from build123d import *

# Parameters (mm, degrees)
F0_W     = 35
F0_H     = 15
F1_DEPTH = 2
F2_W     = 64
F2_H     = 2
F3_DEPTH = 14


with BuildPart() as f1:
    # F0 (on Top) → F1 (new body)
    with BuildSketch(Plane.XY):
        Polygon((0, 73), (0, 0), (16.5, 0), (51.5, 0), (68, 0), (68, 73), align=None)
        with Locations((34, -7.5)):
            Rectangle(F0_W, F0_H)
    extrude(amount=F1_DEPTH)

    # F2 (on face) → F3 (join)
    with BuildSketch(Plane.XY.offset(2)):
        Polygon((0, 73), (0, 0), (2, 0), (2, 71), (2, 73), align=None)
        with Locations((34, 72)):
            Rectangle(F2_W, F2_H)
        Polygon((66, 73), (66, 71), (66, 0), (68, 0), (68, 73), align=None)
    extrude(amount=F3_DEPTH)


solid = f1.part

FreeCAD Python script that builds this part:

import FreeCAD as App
import Part
import Sketcher

V = App.Vector

doc = App.newDocument("Part")
body = doc.addObject("PartDesign::Body", "Body")

# Sketch on XY plane
sketch1 = doc.addObject("Sketcher::SketchObject", "Sketch")
body.addObject(sketch1)
sketch1.AttachmentSupport = (doc.XY_Plane, [""])
sketch1.MapMode = "FlatFace"
sketch1.addGeometry([
    Part.LineSegment(V(0, 73, 0), V(0, 0, 0)),  # 0
    Part.LineSegment(V(0, 0, 0), V(16, 0, 0)),  # 1
    Part.LineSegment(V(16, 0, 0), V(16, -15, 0)),  # 2
    Part.LineSegment(V(16, -15, 0), V(52, -15, 0)),  # 3
    Part.LineSegment(V(52, -15, 0), V(52, 0, 0)),  # 4
    Part.LineSegment(V(52, 0, 0), V(68, 0, 0)),  # 5
    Part.LineSegment(V(68, 0, 0), V(68, 73, 0)),  # 6
    Part.LineSegment(V(68, 73, 0), V(0, 73, 0)),  # 7
], False)
sketch1.addConstraint([
    Sketcher.Constraint("Coincident", 0, 2, 1, 1),
    Sketcher.Constraint("Coincident", 1, 2, 2, 1),
    Sketcher.Constraint("Coincident", 2, 2, 3, 1),
    Sketcher.Constraint("Coincident", 3, 2, 4, 1),
    Sketcher.Constraint("Coincident", 4, 2, 5, 1),
    Sketcher.Constraint("Coincident", 5, 2, 6, 1),
    Sketcher.Constraint("Coincident", 6, 2, 7, 1),
    Sketcher.Constraint("Coincident", 7, 2, 0, 1),
    Sketcher.Constraint("Vertical", 0),
    Sketcher.Constraint("Horizontal", 1),
    Sketcher.Constraint("Vertical", 2),
    Sketcher.Constraint("Horizontal", 3),
    Sketcher.Constraint("Vertical", 4),
    Sketcher.Constraint("Horizontal", 5),
    Sketcher.Constraint("Vertical", 6),
    Sketcher.Constraint("Horizontal", 7),
    Sketcher.Constraint("Coincident", 0, 2, -1, 1),
    Sketcher.Constraint("PointOnObject", 4, 2, -1),
    Sketcher.Constraint("Equal", 1, 5),
    Sketcher.Constraint("DistanceX", 3, 1, 3, 2, 35.0),
    Sketcher.Constraint("DistanceX", 7, 2, 7, 1, 68.0),
    Sketcher.Constraint("DistanceY", 0, 2, 0, 1, 73.0),
    Sketcher.Constraint("DistanceY", 2, 2, 2, 1, 15.0),
])
pad1 = doc.addObject("PartDesign::Pad", "Pad")
body.addObject(pad1)
pad1.Profile = sketch1
pad1.Length = 2

# Sketch on XY plane
sketch2 = doc.addObject("Sketcher::SketchObject", "Sketch001")
body.addObject(sketch2)
sketch2.AttachmentSupport = (doc.XY_Plane, [""])
sketch2.MapMode = "FlatFace"
sketch2.AttachmentOffset = App.Placement(V(0, 0, 2), App.Rotation())
sketch2.addGeometry([
    Part.LineSegment(V(0, 73, 0), V(0, 0, 0)),  # 0
    Part.LineSegment(V(0, 0, 0), V(2, 0, 0)),  # 1
    Part.LineSegment(V(2, 0, 0), V(2, 71, 0)),  # 2
    Part.LineSegment(V(2, 71, 0), V(66, 71, 0)),  # 3
    Part.LineSegment(V(66, 71, 0), V(66, 0, 0)),  # 4
    Part.LineSegment(V(66, 0, 0), V(68, 0, 0)),  # 5
    Part.LineSegment(V(68, 0, 0), V(68, 73, 0)),  # 6
    Part.LineSegment(V(68, 73, 0), V(0, 73, 0)),  # 7
], False)
sketch2.addConstraint([
    Sketcher.Constraint("Coincident", 0, 2, 1, 1),
    Sketcher.Constraint("Coincident", 1, 2, 2, 1),
    Sketcher.Constraint("Coincident", 2, 2, 3, 1),
    Sketcher.Constraint("Coincident", 3, 2, 4, 1),
    Sketcher.Constraint("Coincident", 4, 2, 5, 1),
    Sketcher.Constraint("Coincident", 5, 2, 6, 1),
    Sketcher.Constraint("Coincident", 6, 2, 7, 1),
    Sketcher.Constraint("Coincident", 7, 2, 0, 1),
    Sketcher.Constraint("Vertical", 0),
    Sketcher.Constraint("Horizontal", 1),
    Sketcher.Constraint("Vertical", 2),
    Sketcher.Constraint("Horizontal", 3),
    Sketcher.Constraint("Vertical", 4),
    Sketcher.Constraint("Horizontal", 5),
    Sketcher.Constraint("Vertical", 6),
    Sketcher.Constraint("Horizontal", 7),
    Sketcher.Constraint("Coincident", 0, 2, -1, 1),
    Sketcher.Constraint("PointOnObject", 4, 2, -1),
    Sketcher.Constraint("Equal", 1, 5),
    Sketcher.Constraint("DistanceX", 1, 1, 1, 2, 2.0),
    Sketcher.Constraint("DistanceX", 3, 1, 3, 2, 64.0),
    Sketcher.Constraint("DistanceY", 0, 2, 0, 1, 73.0),
    Sketcher.Constraint("DistanceY", 2, 1, 2, 2, 71.0),
])
pad2 = doc.addObject("PartDesign::Pad", "Pad001")
body.addObject(pad2)
pad2.Profile = sketch2
pad2.Length = 14

doc.recompute()
